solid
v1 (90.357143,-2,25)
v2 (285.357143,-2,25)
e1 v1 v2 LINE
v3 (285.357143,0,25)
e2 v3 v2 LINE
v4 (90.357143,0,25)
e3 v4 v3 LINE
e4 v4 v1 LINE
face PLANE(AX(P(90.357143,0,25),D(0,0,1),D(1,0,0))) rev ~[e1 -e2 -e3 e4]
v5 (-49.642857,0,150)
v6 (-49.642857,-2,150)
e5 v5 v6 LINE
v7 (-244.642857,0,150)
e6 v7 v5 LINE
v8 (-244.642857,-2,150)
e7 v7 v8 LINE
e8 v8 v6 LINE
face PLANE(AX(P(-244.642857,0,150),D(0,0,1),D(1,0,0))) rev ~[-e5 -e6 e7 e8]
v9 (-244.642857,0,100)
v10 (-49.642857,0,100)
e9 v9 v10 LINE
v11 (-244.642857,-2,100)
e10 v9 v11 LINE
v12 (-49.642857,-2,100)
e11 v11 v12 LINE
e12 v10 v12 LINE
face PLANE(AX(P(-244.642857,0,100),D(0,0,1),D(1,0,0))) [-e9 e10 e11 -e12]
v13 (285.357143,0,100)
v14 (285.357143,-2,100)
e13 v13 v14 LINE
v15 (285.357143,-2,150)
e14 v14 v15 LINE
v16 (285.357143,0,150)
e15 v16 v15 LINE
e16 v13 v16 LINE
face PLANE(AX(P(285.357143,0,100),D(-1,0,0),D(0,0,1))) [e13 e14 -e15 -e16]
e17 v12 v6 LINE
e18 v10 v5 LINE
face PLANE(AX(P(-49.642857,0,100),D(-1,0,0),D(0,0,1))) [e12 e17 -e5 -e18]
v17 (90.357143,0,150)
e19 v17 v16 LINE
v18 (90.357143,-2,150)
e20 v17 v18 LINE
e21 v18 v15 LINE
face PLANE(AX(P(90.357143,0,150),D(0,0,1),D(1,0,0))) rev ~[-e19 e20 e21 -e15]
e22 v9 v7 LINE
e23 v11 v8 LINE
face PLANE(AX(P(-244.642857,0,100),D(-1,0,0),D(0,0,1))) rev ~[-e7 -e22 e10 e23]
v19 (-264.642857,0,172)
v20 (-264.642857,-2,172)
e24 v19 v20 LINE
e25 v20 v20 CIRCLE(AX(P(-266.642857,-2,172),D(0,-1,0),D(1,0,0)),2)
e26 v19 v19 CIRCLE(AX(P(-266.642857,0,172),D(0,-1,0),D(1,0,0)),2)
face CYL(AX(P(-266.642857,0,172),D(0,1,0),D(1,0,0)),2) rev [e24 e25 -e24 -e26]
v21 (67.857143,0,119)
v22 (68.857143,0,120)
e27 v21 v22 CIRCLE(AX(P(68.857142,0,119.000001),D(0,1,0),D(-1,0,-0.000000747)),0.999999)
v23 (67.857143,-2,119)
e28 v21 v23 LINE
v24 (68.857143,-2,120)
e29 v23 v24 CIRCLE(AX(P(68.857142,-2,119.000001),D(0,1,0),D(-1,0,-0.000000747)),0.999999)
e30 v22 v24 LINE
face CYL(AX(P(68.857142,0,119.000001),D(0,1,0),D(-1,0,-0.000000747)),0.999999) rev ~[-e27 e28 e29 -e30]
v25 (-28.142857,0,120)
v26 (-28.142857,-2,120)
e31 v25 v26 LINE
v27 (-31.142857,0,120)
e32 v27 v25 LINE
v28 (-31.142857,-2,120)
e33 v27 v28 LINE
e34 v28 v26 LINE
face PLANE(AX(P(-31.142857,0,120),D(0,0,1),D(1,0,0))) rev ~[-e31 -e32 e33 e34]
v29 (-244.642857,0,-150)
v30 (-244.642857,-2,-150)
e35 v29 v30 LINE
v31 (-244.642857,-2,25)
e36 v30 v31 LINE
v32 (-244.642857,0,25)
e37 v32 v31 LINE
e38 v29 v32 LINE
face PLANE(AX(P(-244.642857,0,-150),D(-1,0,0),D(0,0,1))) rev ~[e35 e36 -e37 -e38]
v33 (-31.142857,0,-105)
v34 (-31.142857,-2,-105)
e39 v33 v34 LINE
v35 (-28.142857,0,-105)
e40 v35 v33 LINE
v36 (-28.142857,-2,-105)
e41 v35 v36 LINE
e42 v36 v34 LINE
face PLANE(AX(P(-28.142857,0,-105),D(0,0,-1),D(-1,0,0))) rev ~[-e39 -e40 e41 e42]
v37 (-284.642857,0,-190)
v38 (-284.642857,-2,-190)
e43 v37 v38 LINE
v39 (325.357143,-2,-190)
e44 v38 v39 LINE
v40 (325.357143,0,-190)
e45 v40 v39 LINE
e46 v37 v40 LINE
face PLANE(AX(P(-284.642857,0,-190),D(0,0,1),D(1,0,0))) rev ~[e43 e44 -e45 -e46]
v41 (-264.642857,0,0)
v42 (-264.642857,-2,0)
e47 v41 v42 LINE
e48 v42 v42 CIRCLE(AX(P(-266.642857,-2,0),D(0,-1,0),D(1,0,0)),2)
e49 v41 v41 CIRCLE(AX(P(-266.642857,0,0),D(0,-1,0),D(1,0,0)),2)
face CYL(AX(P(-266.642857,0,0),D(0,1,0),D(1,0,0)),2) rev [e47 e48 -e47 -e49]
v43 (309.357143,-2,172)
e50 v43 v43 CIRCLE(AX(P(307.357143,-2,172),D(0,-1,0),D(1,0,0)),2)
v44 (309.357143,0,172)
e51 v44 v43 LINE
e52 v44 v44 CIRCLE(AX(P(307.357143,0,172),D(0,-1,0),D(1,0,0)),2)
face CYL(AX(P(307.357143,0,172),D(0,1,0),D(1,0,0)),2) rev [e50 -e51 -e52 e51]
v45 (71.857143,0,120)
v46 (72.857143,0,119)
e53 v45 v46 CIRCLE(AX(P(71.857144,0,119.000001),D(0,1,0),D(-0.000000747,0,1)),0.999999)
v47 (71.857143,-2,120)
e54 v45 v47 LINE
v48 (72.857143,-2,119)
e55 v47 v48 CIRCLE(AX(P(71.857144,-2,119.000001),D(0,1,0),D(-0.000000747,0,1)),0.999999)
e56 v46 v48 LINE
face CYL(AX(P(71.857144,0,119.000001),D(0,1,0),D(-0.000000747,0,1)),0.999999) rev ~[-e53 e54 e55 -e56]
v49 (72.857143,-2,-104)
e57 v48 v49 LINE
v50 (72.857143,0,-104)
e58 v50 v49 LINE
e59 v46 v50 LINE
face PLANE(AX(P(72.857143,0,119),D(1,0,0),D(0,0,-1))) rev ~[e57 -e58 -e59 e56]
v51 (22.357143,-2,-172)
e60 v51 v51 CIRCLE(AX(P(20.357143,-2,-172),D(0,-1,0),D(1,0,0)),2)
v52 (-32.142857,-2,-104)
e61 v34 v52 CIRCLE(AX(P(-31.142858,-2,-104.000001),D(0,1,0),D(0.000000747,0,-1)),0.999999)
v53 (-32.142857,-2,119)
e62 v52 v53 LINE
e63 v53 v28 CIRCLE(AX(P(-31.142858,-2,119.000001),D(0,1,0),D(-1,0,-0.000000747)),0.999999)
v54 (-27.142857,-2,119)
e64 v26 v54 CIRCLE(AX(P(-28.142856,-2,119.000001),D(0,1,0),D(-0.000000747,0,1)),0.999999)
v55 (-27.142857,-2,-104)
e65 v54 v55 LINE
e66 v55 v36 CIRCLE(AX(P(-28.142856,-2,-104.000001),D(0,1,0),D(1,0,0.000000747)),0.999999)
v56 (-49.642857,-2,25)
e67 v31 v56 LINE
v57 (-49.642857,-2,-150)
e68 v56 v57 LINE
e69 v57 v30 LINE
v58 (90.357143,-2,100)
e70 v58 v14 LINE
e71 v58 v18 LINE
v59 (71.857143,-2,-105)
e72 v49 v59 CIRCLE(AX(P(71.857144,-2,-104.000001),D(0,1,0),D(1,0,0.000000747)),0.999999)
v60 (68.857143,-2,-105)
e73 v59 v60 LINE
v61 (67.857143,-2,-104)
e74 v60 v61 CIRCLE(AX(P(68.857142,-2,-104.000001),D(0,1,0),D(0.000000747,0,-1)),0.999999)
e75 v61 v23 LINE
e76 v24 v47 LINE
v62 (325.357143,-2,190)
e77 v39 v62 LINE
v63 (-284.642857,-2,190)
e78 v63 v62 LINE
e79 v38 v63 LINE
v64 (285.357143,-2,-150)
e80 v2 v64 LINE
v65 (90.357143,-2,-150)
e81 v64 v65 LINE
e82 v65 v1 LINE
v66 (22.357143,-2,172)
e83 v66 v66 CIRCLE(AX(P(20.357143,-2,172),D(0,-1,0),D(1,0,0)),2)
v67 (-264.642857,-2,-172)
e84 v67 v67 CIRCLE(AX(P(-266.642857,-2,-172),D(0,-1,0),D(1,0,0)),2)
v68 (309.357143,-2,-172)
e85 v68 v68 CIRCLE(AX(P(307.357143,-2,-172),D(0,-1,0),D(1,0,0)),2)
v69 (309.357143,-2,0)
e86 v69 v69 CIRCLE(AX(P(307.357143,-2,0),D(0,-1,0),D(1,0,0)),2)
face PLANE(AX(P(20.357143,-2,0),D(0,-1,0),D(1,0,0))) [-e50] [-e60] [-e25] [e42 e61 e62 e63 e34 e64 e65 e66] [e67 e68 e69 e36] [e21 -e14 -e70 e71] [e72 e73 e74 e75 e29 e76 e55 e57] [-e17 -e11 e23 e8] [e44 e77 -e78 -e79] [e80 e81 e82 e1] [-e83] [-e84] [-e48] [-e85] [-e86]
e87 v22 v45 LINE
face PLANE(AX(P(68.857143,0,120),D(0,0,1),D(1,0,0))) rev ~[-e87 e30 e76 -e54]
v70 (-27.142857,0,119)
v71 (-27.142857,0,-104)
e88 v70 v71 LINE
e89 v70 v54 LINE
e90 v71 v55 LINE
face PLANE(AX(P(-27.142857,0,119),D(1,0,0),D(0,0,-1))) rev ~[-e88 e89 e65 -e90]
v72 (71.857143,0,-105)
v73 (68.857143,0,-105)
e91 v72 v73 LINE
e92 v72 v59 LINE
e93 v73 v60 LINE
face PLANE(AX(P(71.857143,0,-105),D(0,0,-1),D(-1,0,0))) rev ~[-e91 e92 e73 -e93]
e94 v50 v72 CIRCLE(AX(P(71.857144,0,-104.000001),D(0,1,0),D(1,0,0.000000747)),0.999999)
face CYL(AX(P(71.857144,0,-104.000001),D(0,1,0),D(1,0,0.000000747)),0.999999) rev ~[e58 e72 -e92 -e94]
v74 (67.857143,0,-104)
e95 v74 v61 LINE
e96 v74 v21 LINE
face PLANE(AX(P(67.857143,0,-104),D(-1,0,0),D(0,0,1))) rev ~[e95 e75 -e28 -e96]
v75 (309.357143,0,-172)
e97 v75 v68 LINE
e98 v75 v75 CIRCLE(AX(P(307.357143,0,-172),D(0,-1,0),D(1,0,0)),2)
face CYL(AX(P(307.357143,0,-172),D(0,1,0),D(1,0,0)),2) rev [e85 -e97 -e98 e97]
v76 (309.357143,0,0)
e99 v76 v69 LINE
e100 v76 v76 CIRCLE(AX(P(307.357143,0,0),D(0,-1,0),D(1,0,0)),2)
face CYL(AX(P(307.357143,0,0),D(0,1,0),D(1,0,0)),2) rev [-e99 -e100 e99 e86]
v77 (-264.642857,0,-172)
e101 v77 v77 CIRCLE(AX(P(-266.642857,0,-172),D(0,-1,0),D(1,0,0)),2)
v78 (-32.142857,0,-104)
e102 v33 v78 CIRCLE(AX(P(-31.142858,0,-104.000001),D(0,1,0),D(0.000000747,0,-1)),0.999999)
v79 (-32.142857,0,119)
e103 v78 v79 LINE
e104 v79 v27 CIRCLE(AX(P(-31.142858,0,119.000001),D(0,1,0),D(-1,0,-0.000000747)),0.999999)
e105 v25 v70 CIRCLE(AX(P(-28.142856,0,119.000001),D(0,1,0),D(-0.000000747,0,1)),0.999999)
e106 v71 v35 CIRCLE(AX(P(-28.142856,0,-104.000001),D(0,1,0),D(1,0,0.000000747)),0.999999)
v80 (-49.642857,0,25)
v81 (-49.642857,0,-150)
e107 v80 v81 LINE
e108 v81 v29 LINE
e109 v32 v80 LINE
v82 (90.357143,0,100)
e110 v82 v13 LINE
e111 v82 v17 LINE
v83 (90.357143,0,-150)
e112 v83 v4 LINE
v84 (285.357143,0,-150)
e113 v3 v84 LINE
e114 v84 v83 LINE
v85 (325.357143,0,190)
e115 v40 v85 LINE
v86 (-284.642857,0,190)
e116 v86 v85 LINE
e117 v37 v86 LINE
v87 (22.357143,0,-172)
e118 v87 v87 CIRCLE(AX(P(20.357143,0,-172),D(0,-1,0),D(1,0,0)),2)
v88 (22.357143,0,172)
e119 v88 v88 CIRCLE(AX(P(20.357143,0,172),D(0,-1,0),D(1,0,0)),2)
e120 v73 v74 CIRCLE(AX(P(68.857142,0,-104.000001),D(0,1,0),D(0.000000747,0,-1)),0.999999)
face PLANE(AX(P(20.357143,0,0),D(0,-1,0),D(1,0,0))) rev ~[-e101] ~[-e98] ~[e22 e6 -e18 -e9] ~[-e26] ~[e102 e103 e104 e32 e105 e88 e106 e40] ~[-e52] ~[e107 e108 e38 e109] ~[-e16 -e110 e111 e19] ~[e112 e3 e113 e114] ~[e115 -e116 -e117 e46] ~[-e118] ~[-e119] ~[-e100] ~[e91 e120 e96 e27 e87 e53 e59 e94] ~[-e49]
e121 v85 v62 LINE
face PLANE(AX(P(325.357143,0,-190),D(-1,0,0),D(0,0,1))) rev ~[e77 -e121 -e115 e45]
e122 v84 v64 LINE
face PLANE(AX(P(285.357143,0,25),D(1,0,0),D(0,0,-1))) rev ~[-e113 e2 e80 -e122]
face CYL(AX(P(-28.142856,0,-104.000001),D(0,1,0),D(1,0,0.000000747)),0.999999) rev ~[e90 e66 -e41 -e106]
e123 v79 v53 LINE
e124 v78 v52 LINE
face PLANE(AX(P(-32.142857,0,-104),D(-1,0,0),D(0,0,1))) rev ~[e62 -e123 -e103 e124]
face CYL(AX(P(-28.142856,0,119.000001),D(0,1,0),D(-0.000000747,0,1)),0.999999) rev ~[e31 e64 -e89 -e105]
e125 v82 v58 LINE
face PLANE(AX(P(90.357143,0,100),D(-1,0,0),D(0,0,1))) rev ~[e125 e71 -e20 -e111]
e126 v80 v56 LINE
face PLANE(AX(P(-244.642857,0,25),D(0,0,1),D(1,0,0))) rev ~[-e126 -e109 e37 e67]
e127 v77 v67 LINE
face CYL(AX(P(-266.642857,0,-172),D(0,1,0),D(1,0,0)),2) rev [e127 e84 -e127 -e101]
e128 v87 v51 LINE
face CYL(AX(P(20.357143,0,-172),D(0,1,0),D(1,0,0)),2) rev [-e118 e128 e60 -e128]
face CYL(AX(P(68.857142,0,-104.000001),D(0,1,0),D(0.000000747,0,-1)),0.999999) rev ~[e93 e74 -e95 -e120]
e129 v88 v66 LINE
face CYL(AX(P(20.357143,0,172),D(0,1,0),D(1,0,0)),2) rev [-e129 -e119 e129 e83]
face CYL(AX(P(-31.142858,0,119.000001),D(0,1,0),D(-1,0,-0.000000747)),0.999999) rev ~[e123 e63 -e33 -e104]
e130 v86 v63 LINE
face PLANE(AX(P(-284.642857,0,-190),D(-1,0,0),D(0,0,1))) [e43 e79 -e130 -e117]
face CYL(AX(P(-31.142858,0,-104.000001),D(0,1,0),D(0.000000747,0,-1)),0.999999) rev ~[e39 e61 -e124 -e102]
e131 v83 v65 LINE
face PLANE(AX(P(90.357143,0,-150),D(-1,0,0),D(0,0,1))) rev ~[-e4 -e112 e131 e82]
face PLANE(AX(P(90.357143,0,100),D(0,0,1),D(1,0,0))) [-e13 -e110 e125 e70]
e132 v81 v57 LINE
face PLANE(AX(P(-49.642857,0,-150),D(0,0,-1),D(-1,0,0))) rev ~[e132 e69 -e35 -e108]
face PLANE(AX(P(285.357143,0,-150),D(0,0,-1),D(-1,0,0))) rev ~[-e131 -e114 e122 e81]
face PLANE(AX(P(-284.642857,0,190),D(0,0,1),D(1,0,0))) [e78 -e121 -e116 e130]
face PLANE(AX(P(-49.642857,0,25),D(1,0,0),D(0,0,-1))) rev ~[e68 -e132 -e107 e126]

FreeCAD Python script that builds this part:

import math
import FreeCAD as App
import Part
import Sketcher
Q = App.Units.Quantity

doc = App.newDocument("Part")
body = doc.addObject("PartDesign::Body", "Body")

# Sketch on XZ plane
sketch1 = body.newObject("Sketcher::SketchObject", "Sketch")
sketch1.AttachmentSupport = (doc.getObject("XZ_Plane"), [""])
sketch1.MapMode = "FlatFace"
sketch1.addGeometry([
    Part.LineSegment(App.Vector(-284.6, 190, 0), App.Vector(-284.6, -190, 0)),  # 0
    Part.LineSegment(App.Vector(-284.6, -190, 0), App.Vector(325.4, -190, 0)),  # 1
    Part.LineSegment(App.Vector(325.4, -190, 0), App.Vector(325.4, 190, 0)),  # 2
    Part.LineSegment(App.Vector(325.4, 190, 0), App.Vector(-284.6, 190, 0)),  # 3
    Part.Circle(App.Vector(-266.6, -172, 0), App.Vector(0, 0, 1), 2),  # 4
    Part.LineSegment(App.Vector(-49.6, 25, 0), App.Vector(-49.6, -150, 0)),  # 5
    Part.LineSegment(App.Vector(-49.6, -150, 0), App.Vector(-244.6, -150, 0)),  # 6
    Part.LineSegment(App.Vector(-244.6, -150, 0), App.Vector(-244.6, 25, 0)),  # 7
    Part.LineSegment(App.Vector(-244.6, 25, 0), App.Vector(-49.6, 25, 0)),  # 8
    Part.Circle(App.Vector(20.4, -172, 0), App.Vector(0, 0, 1), 2),  # 9
    Part.Circle(App.Vector(307.4, -172, 0), App.Vector(0, 0, 1), 2),  # 10
    Part.LineSegment(App.Vector(285.4, -150, 0), App.Vector(90.4, -150, 0)),  # 11
    Part.LineSegment(App.Vector(90.4, -150, 0), App.Vector(90.4, 25, 0)),  # 12
    Part.LineSegment(App.Vector(90.4, 25, 0), App.Vector(285.4, 25, 0)),  # 13
    Part.LineSegment(App.Vector(285.4, 25, 0), App.Vector(285.4, -150, 0)),  # 14
    Part.Circle(App.Vector(-266.6, 0, 0), App.Vector(0, 0, 1), 2),  # 15
    Part.LineSegment(App.Vector(-32.1, -104, 0), App.Vector(-32.1, 119, 0)),  # 16
    Part.ArcOfCircle(Part.Circle(App.Vector(-31.1, 119, 0), App.Vector(0, 0, 1), 1), math.radians(90), math.radians(180)),  # 17
    Part.LineSegment(App.Vector(-31.1, 120, 0), App.Vector(-28.1, 120, 0)),  # 18
    Part.ArcOfCircle(Part.Circle(App.Vector(-28.1, 119, 0), App.Vector(0, 0, 1), 1), math.radians(0), math.radians(90)),  # 19
    Part.LineSegment(App.Vector(-27.1, 119, 0), App.Vector(-27.1, -104, 0)),  # 20
    Part.ArcOfCircle(Part.Circle(App.Vector(-28.1, -104, 0), App.Vector(0, 0, 1), 1), math.radians(-90), math.radians(0)),  # 21
    Part.LineSegment(App.Vector(-28.1, -105, 0), App.Vector(-31.1, -105, 0)),  # 22
    Part.ArcOfCircle(Part.Circle(App.Vector(-31.1, -104, 0), App.Vector(0, 0, 1), 1), math.radians(180), math.radians(270)),  # 23
    Part.LineSegment(App.Vector(-49.6, 100, 0), App.Vector(-244.6, 100, 0)),  # 24
    Part.LineSegment(App.Vector(-244.6, 100, 0), App.Vector(-244.6, 150, 0)),  # 25
    Part.LineSegment(App.Vector(-244.6, 150, 0), App.Vector(-49.6, 150, 0)),  # 26
    Part.LineSegment(App.Vector(-49.6, 150, 0), App.Vector(-49.6, 100, 0)),  # 27
    Part.Circle(App.Vector(-266.6, 172, 0), App.Vector(0, 0, 1), 2),  # 28
    Part.LineSegment(App.Vector(67.9, -104, 0), App.Vector(67.9, 119, 0)),  # 29
    Part.ArcOfCircle(Part.Circle(App.Vector(68.9, 119, 0), App.Vector(0, 0, 1), 1), math.radians(90), math.radians(180)),  # 30
    Part.LineSegment(App.Vector(68.9, 120, 0), App.Vector(71.9, 120, 0)),  # 31
    Part.ArcOfCircle(Part.Circle(App.Vector(71.9, 119, 0), App.Vector(0, 0, 1), 1), math.radians(0), math.radians(90)),  # 32
    Part.LineSegment(App.Vector(72.9, 119, 0), App.Vector(72.9, -104, 0)),  # 33
    Part.ArcOfCircle(Part.Circle(App.Vector(71.9, -104, 0), App.Vector(0, 0, 1), 1), math.radians(-90), math.radians(0)),  # 34
    Part.LineSegment(App.Vector(71.9, -105, 0), App.Vector(68.9, -105, 0)),  # 35
    Part.ArcOfCircle(Part.Circle(App.Vector(68.9, -104, 0), App.Vector(0, 0, 1), 1), math.radians(180), math.radians(270)),  # 36
    Part.Circle(App.Vector(307.4, 0, 0), App.Vector(0, 0, 1), 2),  # 37
    Part.Circle(App.Vector(20.4, 172, 0), App.Vector(0, 0, 1), 2),  # 38
    Part.LineSegment(App.Vector(285.4, 100, 0), App.Vector(90.4, 100, 0)),  # 39
    Part.LineSegment(App.Vector(90.4, 100, 0), App.Vector(90.4, 150, 0)),  # 40
    Part.LineSegment(App.Vector(90.4, 150, 0), App.Vector(285.4, 150, 0)),  # 41
    Part.LineSegment(App.Vector(285.4, 150, 0), App.Vector(285.4, 100, 0)),  # 42
    Part.Circle(App.Vector(307.4, 172, 0), App.Vector(0, 0, 1), 2),  # 43
], False)
sketch1.addConstraint([
    Sketcher.Constraint("Coincident", 0, 2, 1, 1),
    Sketcher.Constraint("Coincident", 1, 2, 2, 1),
    Sketcher.Constraint("Coincident", 2, 2, 3, 1),
    Sketcher.Constraint("Coincident", 3, 2, 0, 1),
    Sketcher.Constraint("Coincident", 5, 2, 6, 1),
    Sketcher.Constraint("Coincident", 6, 2, 7, 1),
    Sketcher.Constraint("Coincident", 7, 2, 8, 1),
    Sketcher.Constraint("Coincident", 8, 2, 5, 1),
    Sketcher.Constraint("Coincident", 11, 2, 12, 1),
    Sketcher.Constraint("Coincident", 12, 2, 13, 1),
    Sketcher.Constraint("Coincident", 13, 2, 14, 1),
    Sketcher.Constraint("Coincident", 14, 2, 11, 1),
    Sketcher.Constraint("Tangent", 16, 2, 17, 2),
    Sketcher.Constraint("Tangent", 17, 1, 18, 1),
    Sketcher.Constraint("Tangent", 18, 2, 19, 2),
    Sketcher.Constraint("Tangent", 19, 1, 20, 1),
    Sketcher.Constraint("Tangent", 20, 2, 21, 2),
    Sketcher.Constraint("Tangent", 21, 1, 22, 1),
    Sketcher.Constraint("Tangent", 22, 2, 23, 2),
    Sketcher.Constraint("Tangent", 23, 1, 16, 1),
    Sketcher.Constraint("Coincident", 24, 2, 25, 1),
    Sketcher.Constraint("Coincident", 25, 2, 26, 1),
    Sketcher.Constraint("Coincident", 26, 2, 27, 1),
    Sketcher.Constraint("Coincident", 27, 2, 24, 1),
    Sketcher.Constraint("Tangent", 29, 2, 30, 2),
    Sketcher.Constraint("Tangent", 30, 1, 31, 1),
    Sketcher.Constraint("Tangent", 31, 2, 32, 2),
    Sketcher.Constraint("Tangent", 32, 1, 33, 1),
    Sketcher.Constraint("Tangent", 33, 2, 34, 2),
    Sketcher.Constraint("Tangent", 34, 1, 35, 1),
    Sketcher.Constraint("Tangent", 35, 2, 36, 2),
    Sketcher.Constraint("Tangent", 36, 1, 29, 1),
    Sketcher.Constraint("Coincident", 39, 2, 40, 1),
    Sketcher.Constraint("Coincident", 40, 2, 41, 1),
    Sketcher.Constraint("Coincident", 41, 2, 42, 1),
    Sketcher.Constraint("Coincident", 42, 2, 39, 1),
    Sketcher.Constraint("Vertical", 0),
    Sketcher.Constraint("Horizontal", 1),
    Sketcher.Constraint("Vertical", 2),
    Sketcher.Constraint("Horizontal", 3),
    Sketcher.Constraint("Vertical", 5),
    Sketcher.Constraint("Horizontal", 6),
    Sketcher.Constraint("Vertical", 7),
    Sketcher.Constraint("Horizontal", 8),
    Sketcher.Constraint("Horizontal", 11),
    Sketcher.Constraint("Vertical", 12),
    Sketcher.Constraint("Horizontal", 13),
    Sketcher.Constraint("Vertical", 14),
    Sketcher.Constraint("Vertical", 16),
    Sketcher.Constraint("Horizontal", 18),
    Sketcher.Constraint("Vertical", 20),
    Sketcher.Constraint("Horizontal", 22),
    Sketcher.Constraint("Horizontal", 24),
    Sketcher.Constraint("Vertical", 25),
    Sketcher.Constraint("Horizontal", 26),
    Sketcher.Constraint("Vertical", 27),
    Sketcher.Constraint("Vertical", 29),
    Sketcher.Constraint("Horizontal", 31),
    Sketcher.Constraint("Vertical", 33),
    Sketcher.Constraint("Horizontal", 35),
    Sketcher.Constraint("Horizontal", 39),
    Sketcher.Constraint("Vertical", 40),
    Sketcher.Constraint("Horizontal", 41),
    Sketcher.Constraint("Vertical", 42),
    Sketcher.Constraint("Equal", 4, 9),
    Sketcher.Constraint("Equal", 9, 10),
    Sketcher.Constraint("Equal", 10, 15),
    Sketcher.Constraint("Equal", 17, 19),
    Sketcher.Constraint("Equal", 19, 21),
    Sketcher.Constraint("Equal", 21, 23),
    Sketcher.Constraint("Equal", 15, 28),
    Sketcher.Constraint("Equal", 23, 30),
    Sketcher.Constraint("Equal", 30, 32),
    Sketcher.Constraint("Equal", 32, 34),
    Sketcher.Constraint("Equal", 34, 36),
    Sketcher.Constraint("Equal", 28, 37),
    Sketcher.Constraint("Equal", 37, 38),
    Sketcher.Constraint("Equal", 38, 43),
    Sketcher.Constraint("Symmetric", 4, 3, 28, 3, -1),
    Sketcher.Constraint("Symmetric", 9, 3, 38, 3, -1),
    Sketcher.Constraint("Symmetric", 10, 3, 43, 3, -1),
    Sketcher.Constraint("Symmetric", 6, 2, 25, 2, -1),
    Sketcher.Constraint("Symmetric", 11, 2, 40, 2, -1),
    Sketcher.Constraint("PointOnObject", 15, 3, -1),
    Sketcher.Constraint("PointOnObject", 37, 3, -1),
    Sketcher.Constraint("Horizontal", 4, 3, 9, 3),
    Sketcher.Constraint("Horizontal", 9, 3, 10, 3),
    Sketcher.Constraint("Horizontal", 19, 3, 30, 3),
    Sketcher.Constraint("Horizontal", 23, 3, 34, 3),
    Sketcher.Constraint("Horizontal", 6, 2, 11, 2),
    Sketcher.Constraint("Horizontal", 8, 2, 12, 2),
    Sketcher.Constraint("Horizontal", 27, 2, 39, 2),
    Sketcher.Constraint("Vertical", 4, 3, 15, 3),
    Sketcher.Constraint("Vertical", 10, 3, 37, 3),
    Sketcher.Constraint("Vertical", 8, 2, 26, 2),
    Sketcher.Constraint("Vertical", 14, 2, 41, 2),
    Sketcher.Constraint("Equal", 8, 11),
    Sketcher.Constraint("Equal", 22, 31),
    Sketcher.Constraint("Diameter", 4, Q("4 mm")),
    Sketcher.Constraint("Radius", 17, Q("0.999999 mm")),
    Sketcher.Constraint("DistanceX", 1, 1, 1, 2, Q("610 mm")),
    Sketcher.Constraint("DistanceX", 6, 2, 6, 1, Q("195 mm")),
    Sketcher.Constraint("DistanceX", 18, 1, 18, 2, Q("3 mm")),
    Sketcher.Constraint("DistanceY", 0, 2, 0, 1, Q("380 mm")),
    Sketcher.Constraint("DistanceY", 5, 2, 5, 1, Q("175 mm")),
    Sketcher.Constraint("DistanceY", 16, 1, 16, 2, Q("223 mm")),
    Sketcher.Constraint("DistanceY", 25, 1, 25, 2, Q("50 mm")),
    Sketcher.Constraint("DistanceY", 4, 3, -1, 1, Q("172 mm")),
    Sketcher.Constraint("DistanceY", -1, 1, 17, 3, Q("119.000001 mm")),
    Sketcher.Constraint("DistanceY", 0, 2, -1, 1, Q("190 mm")),
    Sketcher.Constraint("DistanceY", 5, 2, -1, 1, Q("150 mm")),
    Sketcher.Constraint("DistanceX", 4, 3, 9, 3, Q("287 mm")),
    Sketcher.Constraint("DistanceX", 9, 3, 10, 3, Q("287 mm")),
    Sketcher.Constraint("DistanceX", 19, 3, 30, 3, Q("96.999999 mm")),
    Sketcher.Constraint("DistanceX", 0, 2, 4, 3, Q("18 mm")),
    Sketcher.Constraint("DistanceX", 5, 2, 9, 3, Q("70 mm")),
    Sketcher.Constraint("DistanceX", 9, 3, 11, 2, Q("70 mm")),
    Sketcher.Constraint("DistanceX", 15, 3, 17, 3, Q("235.499999 mm")),
    Sketcher.Constraint("DistanceX", 4, 3, -1, 1, Q("266.642857 mm")),
])
pad1 = body.newObject("PartDesign::Pad", "Pad")
pad1.Profile = sketch1
pad1.Length = 2

doc.recompute()
